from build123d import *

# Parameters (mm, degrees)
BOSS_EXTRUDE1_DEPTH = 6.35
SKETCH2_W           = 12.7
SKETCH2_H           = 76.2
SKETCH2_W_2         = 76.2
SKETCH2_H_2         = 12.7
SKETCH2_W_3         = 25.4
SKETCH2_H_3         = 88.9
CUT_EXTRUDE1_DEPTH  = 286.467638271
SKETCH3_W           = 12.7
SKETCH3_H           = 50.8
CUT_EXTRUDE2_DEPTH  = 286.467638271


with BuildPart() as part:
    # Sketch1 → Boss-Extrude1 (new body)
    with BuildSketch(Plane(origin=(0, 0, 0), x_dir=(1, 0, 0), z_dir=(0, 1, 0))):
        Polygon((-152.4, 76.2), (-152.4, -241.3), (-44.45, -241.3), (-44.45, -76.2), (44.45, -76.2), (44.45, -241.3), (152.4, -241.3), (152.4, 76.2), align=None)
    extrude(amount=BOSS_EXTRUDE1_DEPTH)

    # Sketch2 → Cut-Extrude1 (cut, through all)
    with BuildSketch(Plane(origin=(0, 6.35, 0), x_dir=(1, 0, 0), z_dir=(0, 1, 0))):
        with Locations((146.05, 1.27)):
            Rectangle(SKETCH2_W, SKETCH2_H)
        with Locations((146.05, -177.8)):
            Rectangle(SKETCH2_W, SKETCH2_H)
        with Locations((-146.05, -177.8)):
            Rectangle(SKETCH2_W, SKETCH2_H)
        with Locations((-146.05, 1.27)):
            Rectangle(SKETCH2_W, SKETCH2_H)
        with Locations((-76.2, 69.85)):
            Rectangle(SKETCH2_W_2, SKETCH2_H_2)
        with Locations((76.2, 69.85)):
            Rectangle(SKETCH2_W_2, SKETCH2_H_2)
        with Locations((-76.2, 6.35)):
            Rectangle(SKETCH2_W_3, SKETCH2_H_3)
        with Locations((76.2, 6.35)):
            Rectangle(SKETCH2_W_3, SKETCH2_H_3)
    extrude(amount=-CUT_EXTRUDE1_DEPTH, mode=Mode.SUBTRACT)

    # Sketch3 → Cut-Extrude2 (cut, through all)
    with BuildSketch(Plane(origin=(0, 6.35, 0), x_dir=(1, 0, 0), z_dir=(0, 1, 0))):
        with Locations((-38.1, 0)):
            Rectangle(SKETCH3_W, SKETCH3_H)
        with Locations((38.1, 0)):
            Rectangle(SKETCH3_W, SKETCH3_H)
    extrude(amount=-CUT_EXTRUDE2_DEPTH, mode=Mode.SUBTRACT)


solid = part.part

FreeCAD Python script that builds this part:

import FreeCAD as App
import Part
import Sketcher

V = App.Vector
Q = App.Units.Quantity


def add_polygon(sketch, points):
    """Adds a closed chain of lines whose ends are joined by coincident constraints."""
    first, n = sketch.GeometryCount, len(points)
    for a, b in zip(points, points[1:] + points[:1]):
        sketch.addGeometry(Part.LineSegment(App.Vector(*a, 0), App.Vector(*b, 0)), False)
    for i in range(n):
        sketch.addConstraint(Sketcher.Constraint("Coincident", first + i, 2, first + (i + 1) % n, 1))

doc = App.newDocument("Part")
body = doc.addObject("PartDesign::Body", "Body")

# Sketch on XZ plane
sketch1 = body.newObject("Sketcher::SketchObject", "Sketch")
sketch1.AttachmentSupport = (doc.getObject("XZ_Plane"), [""])
sketch1.MapMode = "FlatFace"
add_polygon(sketch1, [(-152.4, -76.2), (-152.4, 241.3), (-44.45, 241.3), (-44.45, 76.2), (44.45, 76.2), (44.45, 241.3), (152.4, 241.3), (152.4, -76.2)])  # lines 0-7
sketch1.addConstraint(Sketcher.Constraint("Vertical", 0))
sketch1.addConstraint(Sketcher.Constraint("Horizontal", 1))
sketch1.addConstraint(Sketcher.Constraint("Vertical", 2))
sketch1.addConstraint(Sketcher.Constraint("Horizontal", 3))
sketch1.addConstraint(Sketcher.Constraint("Vertical", 4))
sketch1.addConstraint(Sketcher.Constraint("Horizontal", 5))
sketch1.addConstraint(Sketcher.Constraint("Vertical", 6))
sketch1.addConstraint(Sketcher.Constraint("Horizontal", 7))
sketch1.addConstraint(Sketcher.Constraint("Symmetric", 1, 2, 4, 2, -2))
sketch1.addConstraint(Sketcher.Constraint("Equal", 1, 5))
sketch1.addConstraint(Sketcher.Constraint("DistanceX", 7, 2, 7, 1, Q("12 in")))
sketch1.addConstraint(Sketcher.Constraint("DistanceX", 3, 1, 3, 2, Q("3.5 in")))
sketch1.addConstraint(Sketcher.Constraint("DistanceY", 0, 1, 0, 2, Q("12.5 in")))
sketch1.addConstraint(Sketcher.Constraint("DistanceY", 2, 2, 2, 1, Q("6.5 in")))
sketch1.addConstraint(Sketcher.Constraint("DistanceY", -1, 1, 2, 2, Q("3 in")))
pad1 = body.newObject("PartDesign::Pad", "Pad")
pad1.Profile = sketch1
pad1.Length = Q("0.25 in")
pad1.Reversed = True

# Sketch on XZ plane
sketch2 = body.newObject("Sketcher::SketchObject", "Sketch001")
sketch2.AttachmentSupport = (doc.getObject("XZ_Plane"), [""])
sketch2.MapMode = "FlatFace"
sketch2.AttachmentOffset = App.Placement(V(0, 0, -0.25 * 25.4), App.Rotation())
add_polygon(sketch2, [(139.7, -39.37), (139.7, 36.83), (152.4, 36.83), (152.4, -39.37)])  # lines 0-3
add_polygon(sketch2, [(139.7, 139.7), (139.7, 215.9), (152.4, 215.9), (152.4, 139.7)])  # lines 4-7
add_polygon(sketch2, [(-152.4, 139.7), (-152.4, 215.9), (-139.7, 215.9), (-139.7, 139.7)])  # lines 8-11
add_polygon(sketch2, [(-152.4, -39.37), (-152.4, 36.83), (-139.7, 36.83), (-139.7, -39.37)])  # lines 12-15
add_polygon(sketch2, [(-114.3, -76.2), (-114.3, -63.5), (-38.1, -63.5), (-38.1, -76.2)])  # lines 16-19
add_polygon(sketch2, [(38.1, -76.2), (38.1, -63.5), (114.3, -63.5), (114.3, -76.2)])  # lines 20-23
add_polygon(sketch2, [(-88.9, -50.8), (-88.9, 38.1), (-63.5, 38.1), (-63.5, -50.8)])  # lines 24-27
add_polygon(sketch2, [(63.5, -50.8), (63.5, 38.1), (88.9, 38.1), (88.9, -50.8)])  # lines 28-31
sketch2.addConstraint(Sketcher.Constraint("Vertical", 0))
sketch2.addConstraint(Sketcher.Constraint("Horizontal", 1))
sketch2.addConstraint(Sketcher.Constraint("Vertical", 2))
sketch2.addConstraint(Sketcher.Constraint("Horizontal", 3))
sketch2.addConstraint(Sketcher.Constraint("Vertical", 4))
sketch2.addConstraint(Sketcher.Constraint("Horizontal", 5))
sketch2.addConstraint(Sketcher.Constraint("Vertical", 6))
sketch2.addConstraint(Sketcher.Constraint("Horizontal", 7))
sketch2.addConstraint(Sketcher.Constraint("Vertical", 8))
sketch2.addConstraint(Sketcher.Constraint("Horizontal", 9))
sketch2.addConstraint(Sketcher.Constraint("Vertical", 10))
sketch2.addConstraint(Sketcher.Constraint("Horizontal", 11))
sketch2.addConstraint(Sketcher.Constraint("Vertical", 12))
sketch2.addConstraint(Sketcher.Constraint("Horizontal", 13))
sketch2.addConstraint(Sketcher.Constraint("Vertical", 14))
sketch2.addConstraint(Sketcher.Constraint("Horizontal", 15))
sketch2.addConstraint(Sketcher.Constraint("Vertical", 16))
sketch2.addConstraint(Sketcher.Constraint("Horizontal", 17))
sketch2.addConstraint(Sketcher.Constraint("Vertical", 18))
sketch2.addConstraint(Sketcher.Constraint("Horizontal", 19))
sketch2.addConstraint(Sketcher.Constraint("Vertical", 20))
sketch2.addConstraint(Sketcher.Constraint("Horizontal", 21))
sketch2.addConstraint(Sketcher.Constraint("Vertical", 22))
sketch2.addConstraint(Sketcher.Constraint("Horizontal", 23))
sketch2.addConstraint(Sketcher.Constraint("Vertical", 24))
sketch2.addConstraint(Sketcher.Constraint("Horizontal", 25))
sketch2.addConstraint(Sketcher.Constraint("Vertical", 26))
sketch2.addConstraint(Sketcher.Constraint("Horizontal", 27))
sketch2.addConstraint(Sketcher.Constraint("Vertical", 28))
sketch2.addConstraint(Sketcher.Constraint("Horizontal", 29))
sketch2.addConstraint(Sketcher.Constraint("Vertical", 30))
sketch2.addConstraint(Sketcher.Constraint("Horizontal", 31))
sketch2.addConstraint(Sketcher.Constraint("Symmetric", 5, 2, 8, 2, -2))
sketch2.addConstraint(Sketcher.Constraint("Symmetric", 7, 2, 10, 2, -2))
sketch2.addConstraint(Sketcher.Constraint("Symmetric", 1, 2, 12, 2, -2))
sketch2.addConstraint(Sketcher.Constraint("Symmetric", 3, 2, 14, 2, -2))
sketch2.addConstraint(Sketcher.Constraint("Symmetric", 17, 2, 20, 2, -2))
sketch2.addConstraint(Sketcher.Constraint("Symmetric", 19, 2, 22, 2, -2))
sketch2.addConstraint(Sketcher.Constraint("Symmetric", 25, 2, 28, 2, -2))
sketch2.addConstraint(Sketcher.Constraint("Symmetric", 27, 2, 30, 2, -2))
sketch2.addConstraint(Sketcher.Constraint("Vertical", 3, 2, 4, 2))
sketch2.addConstraint(Sketcher.Constraint("Vertical", 2, 2, 5, 2))
sketch2.addConstraint(Sketcher.Constraint("Equal", 23, 0))
sketch2.addConstraint(Sketcher.Constraint("Equal", 2, 4))
sketch2.addConstraint(Sketcher.Constraint("Equal", 15, 16))
sketch2.addConstraint(Sketcher.Constraint("DistanceX", 17, 1, 17, 2, Q("3 in")))
sketch2.addConstraint(Sketcher.Constraint("DistanceX", 25, 1, 25, 2, Q("1 in")))
sketch2.addConstraint(Sketcher.Constraint("DistanceX", 1, 1, 1, 2, Q("0.5 in")))
sketch2.addConstraint(Sketcher.Constraint("DistanceY", 24, 1, 24, 2, Q("3.5 in")))
sketch2.addConstraint(Sketcher.Constraint("DistanceX", -1, 1, 1, 2, Q("6 in")))
sketch2.addConstraint(Sketcher.Constraint("DistanceY", 18, 2, -1, 1, Q("3 in")))
sketch2.addConstraint(Sketcher.Constraint("DistanceY", 26, 2, -1, 1, Q("2 in")))
sketch2.addConstraint(Sketcher.Constraint("DistanceX", 14, 2, 16, 2, Q("1 in")))
sketch2.addConstraint(Sketcher.Constraint("DistanceY", 16, 2, 10, 2, Q("8 in")))
sketch2.addConstraint(Sketcher.Constraint("DistanceX", 13, 2, 24, 2, Q("2 in")))
sketch2.addConstraint(Sketcher.Constraint("DistanceY", -1, 1, 0, 2, Q("1.45 in")))
pocket1 = body.newObject("PartDesign::Pocket", "Pocket")
pocket1.Profile = sketch2
pocket1.Type = "ThroughAll"
pocket1.Reversed = True

# Sketch on XZ plane
sketch3 = body.newObject("Sketcher::SketchObject", "Sketch002")
sketch3.AttachmentSupport = (doc.getObject("XZ_Plane"), [""])
sketch3.MapMode = "FlatFace"
sketch3.AttachmentOffset = App.Placement(V(0, 0, -0.25 * 25.4), App.Rotation())
add_polygon(sketch3, [(-44.45, -25.4), (-44.45, 25.4), (-31.75, 25.4), (-31.75, -25.4)])  # lines 0-3
add_polygon(sketch3, [(31.75, -25.4), (31.75, 25.4), (44.45, 25.4), (44.45, -25.4)])  # lines 4-7
sketch3.addConstraint(Sketcher.Constraint("Vertical", 0))
sketch3.addConstraint(Sketcher.Constraint("Horizontal", 1))
sketch3.addConstraint(Sketcher.Constraint("Vertical", 2))
sketch3.addConstraint(Sketcher.Constraint("Horizontal", 3))
sketch3.addConstraint(Sketcher.Constraint("Vertical", 4))
sketch3.addConstraint(Sketcher.Constraint("Horizontal", 5))
sketch3.addConstraint(Sketcher.Constraint("Vertical", 6))
sketch3.addConstraint(Sketcher.Constraint("Horizontal", 7))
sketch3.addConstraint(Sketcher.Constraint("Symmetric", 2, 2, 4, 2, -1, 1))
sketch3.addConstraint(Sketcher.Constraint("Symmetric", 0, 2, 6, 2, -1, 1))
sketch3.addConstraint(Sketcher.Constraint("Horizontal", 1, 2, 4, 2))
sketch3.addConstraint(Sketcher.Constraint("DistanceY", 0, 1, 0, 2, Q("2 in")))
sketch3.addConstraint(Sketcher.Constraint("DistanceX", 1, 1, 1, 2, Q("0.5 in")))
sketch3.addConstraint(Sketcher.Constraint("DistanceX", 0, 2, 4, 2, Q("3 in")))
pocket2 = body.newObject("PartDesign::Pocket", "Pocket001")
pocket2.Profile = sketch3
pocket2.Type = "ThroughAll"
pocket2.Reversed = True

doc.recompute()
